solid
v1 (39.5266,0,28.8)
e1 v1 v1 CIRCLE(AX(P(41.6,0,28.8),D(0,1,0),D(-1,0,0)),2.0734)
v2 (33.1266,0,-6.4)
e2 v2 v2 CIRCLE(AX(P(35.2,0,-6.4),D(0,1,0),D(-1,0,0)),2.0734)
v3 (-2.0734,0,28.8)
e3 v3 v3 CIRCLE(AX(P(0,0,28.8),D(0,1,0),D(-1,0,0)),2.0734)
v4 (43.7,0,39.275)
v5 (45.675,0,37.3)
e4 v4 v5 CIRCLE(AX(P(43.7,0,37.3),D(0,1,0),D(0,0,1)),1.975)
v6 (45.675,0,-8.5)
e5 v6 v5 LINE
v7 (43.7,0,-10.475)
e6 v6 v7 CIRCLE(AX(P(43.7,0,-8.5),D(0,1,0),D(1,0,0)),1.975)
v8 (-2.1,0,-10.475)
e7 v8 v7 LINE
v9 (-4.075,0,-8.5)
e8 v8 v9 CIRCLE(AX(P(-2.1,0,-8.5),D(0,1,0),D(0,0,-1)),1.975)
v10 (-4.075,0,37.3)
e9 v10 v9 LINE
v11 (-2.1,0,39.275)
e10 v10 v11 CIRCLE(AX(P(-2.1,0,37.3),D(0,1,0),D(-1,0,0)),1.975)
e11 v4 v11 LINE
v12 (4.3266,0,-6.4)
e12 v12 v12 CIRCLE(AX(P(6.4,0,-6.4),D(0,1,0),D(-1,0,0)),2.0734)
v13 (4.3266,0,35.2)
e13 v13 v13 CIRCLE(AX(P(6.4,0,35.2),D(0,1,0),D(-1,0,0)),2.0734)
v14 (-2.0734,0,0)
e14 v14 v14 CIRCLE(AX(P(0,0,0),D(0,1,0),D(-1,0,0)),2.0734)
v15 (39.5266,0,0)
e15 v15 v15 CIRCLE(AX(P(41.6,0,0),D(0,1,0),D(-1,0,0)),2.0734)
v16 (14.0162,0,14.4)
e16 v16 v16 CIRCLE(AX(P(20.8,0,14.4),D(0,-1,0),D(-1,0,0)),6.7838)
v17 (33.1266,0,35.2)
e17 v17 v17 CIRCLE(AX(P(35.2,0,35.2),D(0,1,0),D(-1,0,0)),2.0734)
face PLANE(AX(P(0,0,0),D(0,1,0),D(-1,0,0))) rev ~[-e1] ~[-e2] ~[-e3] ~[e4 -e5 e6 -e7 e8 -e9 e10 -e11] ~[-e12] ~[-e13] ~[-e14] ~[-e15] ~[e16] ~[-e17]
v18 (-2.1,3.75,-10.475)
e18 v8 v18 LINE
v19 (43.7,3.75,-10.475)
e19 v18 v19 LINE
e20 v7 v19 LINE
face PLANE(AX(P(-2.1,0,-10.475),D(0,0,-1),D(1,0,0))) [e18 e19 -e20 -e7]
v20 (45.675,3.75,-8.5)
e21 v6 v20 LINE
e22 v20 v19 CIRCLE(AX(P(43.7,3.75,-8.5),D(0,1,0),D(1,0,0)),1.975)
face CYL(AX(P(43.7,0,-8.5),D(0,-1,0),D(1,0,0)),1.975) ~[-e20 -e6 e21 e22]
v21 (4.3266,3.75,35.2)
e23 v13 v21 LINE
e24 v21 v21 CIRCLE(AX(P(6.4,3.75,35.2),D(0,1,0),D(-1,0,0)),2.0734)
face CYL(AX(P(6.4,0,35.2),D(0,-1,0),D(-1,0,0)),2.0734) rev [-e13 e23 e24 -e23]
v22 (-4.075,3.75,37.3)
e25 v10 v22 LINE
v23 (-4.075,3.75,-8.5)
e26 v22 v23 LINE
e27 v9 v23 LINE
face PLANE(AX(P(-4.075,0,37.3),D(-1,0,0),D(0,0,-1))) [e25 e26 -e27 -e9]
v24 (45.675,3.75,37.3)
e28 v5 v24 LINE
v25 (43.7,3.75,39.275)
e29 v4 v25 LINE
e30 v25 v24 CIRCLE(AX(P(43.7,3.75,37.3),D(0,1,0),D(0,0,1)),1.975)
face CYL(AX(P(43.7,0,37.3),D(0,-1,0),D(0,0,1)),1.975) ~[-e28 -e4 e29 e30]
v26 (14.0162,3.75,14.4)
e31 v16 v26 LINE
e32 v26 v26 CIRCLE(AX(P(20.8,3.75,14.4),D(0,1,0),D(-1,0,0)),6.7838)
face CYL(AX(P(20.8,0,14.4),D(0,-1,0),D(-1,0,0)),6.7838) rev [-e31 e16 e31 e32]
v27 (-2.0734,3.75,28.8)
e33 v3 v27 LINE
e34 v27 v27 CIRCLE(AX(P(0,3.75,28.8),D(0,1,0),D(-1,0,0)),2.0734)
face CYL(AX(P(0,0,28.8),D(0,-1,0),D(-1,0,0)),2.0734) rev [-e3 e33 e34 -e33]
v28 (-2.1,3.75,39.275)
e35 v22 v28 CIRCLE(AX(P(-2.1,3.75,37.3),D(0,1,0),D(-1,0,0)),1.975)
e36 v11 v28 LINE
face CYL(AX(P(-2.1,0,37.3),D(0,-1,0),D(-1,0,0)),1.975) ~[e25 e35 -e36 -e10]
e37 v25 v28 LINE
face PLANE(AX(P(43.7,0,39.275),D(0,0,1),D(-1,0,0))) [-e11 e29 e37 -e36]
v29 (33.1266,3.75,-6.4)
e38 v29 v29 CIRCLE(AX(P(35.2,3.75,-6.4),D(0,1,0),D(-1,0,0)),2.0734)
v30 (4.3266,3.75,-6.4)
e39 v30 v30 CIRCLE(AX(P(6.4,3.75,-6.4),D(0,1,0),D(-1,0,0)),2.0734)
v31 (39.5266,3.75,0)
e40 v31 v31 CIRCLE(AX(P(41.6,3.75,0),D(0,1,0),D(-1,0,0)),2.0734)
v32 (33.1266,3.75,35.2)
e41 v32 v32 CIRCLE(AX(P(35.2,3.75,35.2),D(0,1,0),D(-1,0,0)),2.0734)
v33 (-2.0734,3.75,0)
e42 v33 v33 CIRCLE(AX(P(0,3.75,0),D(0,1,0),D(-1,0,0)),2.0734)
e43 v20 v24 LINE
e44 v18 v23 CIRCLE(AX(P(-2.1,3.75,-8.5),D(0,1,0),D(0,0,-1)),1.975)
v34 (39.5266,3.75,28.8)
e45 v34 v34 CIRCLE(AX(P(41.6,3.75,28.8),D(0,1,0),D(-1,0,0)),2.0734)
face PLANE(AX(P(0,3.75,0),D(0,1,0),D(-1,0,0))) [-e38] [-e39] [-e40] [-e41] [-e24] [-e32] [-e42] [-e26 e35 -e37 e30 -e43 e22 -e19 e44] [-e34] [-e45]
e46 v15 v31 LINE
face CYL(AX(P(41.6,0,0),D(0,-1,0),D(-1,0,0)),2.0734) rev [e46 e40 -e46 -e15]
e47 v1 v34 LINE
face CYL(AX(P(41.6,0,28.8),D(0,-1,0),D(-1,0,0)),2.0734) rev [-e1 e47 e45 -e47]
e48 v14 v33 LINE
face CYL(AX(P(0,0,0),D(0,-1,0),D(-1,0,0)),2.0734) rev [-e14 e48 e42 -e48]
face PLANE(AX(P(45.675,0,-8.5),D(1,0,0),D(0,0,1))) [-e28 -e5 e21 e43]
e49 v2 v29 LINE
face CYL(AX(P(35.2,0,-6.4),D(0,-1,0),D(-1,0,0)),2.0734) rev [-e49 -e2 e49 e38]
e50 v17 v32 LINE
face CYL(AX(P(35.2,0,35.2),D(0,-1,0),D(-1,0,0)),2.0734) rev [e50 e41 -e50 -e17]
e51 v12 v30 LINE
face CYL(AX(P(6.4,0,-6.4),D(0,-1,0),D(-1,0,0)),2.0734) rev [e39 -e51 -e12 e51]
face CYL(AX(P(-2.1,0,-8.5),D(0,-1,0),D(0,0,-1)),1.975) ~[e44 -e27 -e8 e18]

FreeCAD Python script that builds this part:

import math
import FreeCAD as App
import Part
import Sketcher
Q = App.Units.Quantity

doc = App.newDocument("Part")
params = doc.addObject("Spreadsheet::Sheet", "Params")
for row, (alias, value) in enumerate([
    ("sketch1_width", "45.8 mm"),
    ("pad1_length", "3.75 mm"),
], start=1):
    params.set(f"A{row}", alias)
    params.set(f"B{row}", "=" + value)
    params.setAlias(f"B{row}", alias)

body = doc.addObject("PartDesign::Body", "Body")

sketch1 = body.newObject("Sketcher::SketchObject", "Sketch")
sketch1.AttachmentSupport = (doc.getObject("XZ_Plane"), [""])
sketch1.MapMode = "FlatFace"
sketch1.addGeometry([
    Part.LineSegment(App.Vector(-2.1, 39.3, 0), App.Vector(43.7, 39.3, 0)),
    Part.ArcOfCircle(Part.Circle(App.Vector(43.7, 37.3, 0), App.Vector(0, 0, 1), 2), math.radians(0), math.radians(90)),
    Part.LineSegment(App.Vector(45.7, 37.3, 0), App.Vector(45.7, -8.5, 0)),
    Part.ArcOfCircle(Part.Circle(App.Vector(43.7, -8.5, 0), App.Vector(0, 0, 1), 2), math.radians(-90), math.radians(0)),
    Part.LineSegment(App.Vector(43.7, -10.5, 0), App.Vector(-2.1, -10.5, 0)),
    Part.ArcOfCircle(Part.Circle(App.Vector(-2.1, -8.5, 0), App.Vector(0, 0, 1), 2), math.radians(180), math.radians(270)),
    Part.LineSegment(App.Vector(-4.1, -8.5, 0), App.Vector(-4.1, 37.3, 0)),
    Part.ArcOfCircle(Part.Circle(App.Vector(-2.1, 37.3, 0), App.Vector(0, 0, 1), 2), math.radians(90), math.radians(180)),
    Part.Circle(App.Vector(20.8, 14.4, 0), App.Vector(0, 0, 1), 6.8),
    Part.Circle(App.Vector(35.2, -6.4, 0), App.Vector(0, 0, 1), 2.1),
    Part.Circle(App.Vector(41.6, 0, 0), App.Vector(0, 0, 1), 2.1),
    Part.Circle(App.Vector(6.4, -6.4, 0), App.Vector(0, 0, 1), 2.1),
    Part.Circle(App.Vector(0, 0, 0), App.Vector(0, 0, 1), 2.1),
    Part.Circle(App.Vector(35.2, 35.2, 0), App.Vector(0, 0, 1), 2.1),
    Part.Circle(App.Vector(41.6, 28.8, 0), App.Vector(0, 0, 1), 2.1),
    Part.Circle(App.Vector(0, 28.8, 0), App.Vector(0, 0, 1), 2.1),
    Part.Circle(App.Vector(6.4, 35.2, 0), App.Vector(0, 0, 1), 2.1),
], False)
sketch1.addConstraint([
    Sketcher.Constraint("Tangent", 0, 2, 1, 2),
    Sketcher.Constraint("Tangent", 1, 1, 2, 1),
    Sketcher.Constraint("Tangent", 2, 2, 3, 2),
    Sketcher.Constraint("Tangent", 3, 1, 4, 1),
    Sketcher.Constraint("Tangent", 4, 2, 5, 2),
    Sketcher.Constraint("Tangent", 5, 1, 6, 1),
    Sketcher.Constraint("Tangent", 6, 2, 7, 2),
    Sketcher.Constraint("Tangent", 7, 1, 0, 1),
    Sketcher.Constraint("Horizontal", 0),
    Sketcher.Constraint("Vertical", 2),
    Sketcher.Constraint("Horizontal", 4),
    Sketcher.Constraint("Vertical", 6),
    Sketcher.Constraint("Coincident", 12, 3, -1, 1),
    Sketcher.Constraint("Equal", 1, 3),
    Sketcher.Constraint("Equal", 3, 5),
    Sketcher.Constraint("Equal", 5, 7),
    Sketcher.Constraint("Equal", 9, 10),
    Sketcher.Constraint("Equal", 10, 11),
    Sketcher.Constraint("Equal", 11, 12),
    Sketcher.Constraint("Equal", 12, 13),
    Sketcher.Constraint("Equal", 13, 14),
    Sketcher.Constraint("Equal", 14, 15),
    Sketcher.Constraint("Equal", 15, 16),
    Sketcher.Constraint("PointOnObject", 10, 3, -1),
    Sketcher.Constraint("PointOnObject", 15, 3, -2),
    Sketcher.Constraint("Horizontal", 9, 3, 11, 3),
    Sketcher.Constraint("Horizontal", 14, 3, 15, 3),
    Sketcher.Constraint("Horizontal", 13, 3, 16, 3),
    Sketcher.Constraint("Vertical", 9, 3, 13, 3),
    Sketcher.Constraint("Vertical", 10, 3, 14, 3),
    Sketcher.Constraint("Vertical", 11, 3, 16, 3),
    Sketcher.Constraint("Equal", 4, 2),
    Sketcher.Constraint("Diameter", 8, Q("13.5676 mm")),
    Sketcher.Constraint("DistanceX", 0, 1, 0, 2, Q("45.8 mm")),
    Sketcher.Constraint("Radius", 1, Q("1.975 mm")),
    Sketcher.Constraint("Diameter", 9, Q("4.1468 mm")),
    Sketcher.Constraint("DistanceX", -1, 1, 1, 3, Q("43.7 mm")),
    Sketcher.Constraint("DistanceY", -1, 1, 1, 3, Q("37.3 mm")),
    Sketcher.Constraint("DistanceX", -1, 1, 8, 3, Q("20.8 mm")),
    Sketcher.Constraint("DistanceY", -1, 1, 8, 3, Q("14.4 mm")),
    Sketcher.Constraint("DistanceX", -1, 1, 9, 3, Q("35.2 mm")),
    Sketcher.Constraint("DistanceY", 9, 3, -1, 1, Q("6.4 mm")),
    Sketcher.Constraint("DistanceX", -1, 1, 10, 3, Q("41.6 mm")),
    Sketcher.Constraint("DistanceX", -1, 1, 11, 3, Q("6.4 mm")),
    Sketcher.Constraint("DistanceY", -1, 1, 13, 3, Q("35.2 mm")),
    Sketcher.Constraint("DistanceY", -1, 1, 14, 3, Q("28.8 mm")),
])
sketch1.setExpression("Constraints[33]", "Params.sketch1_width")
pad1 = body.newObject("PartDesign::Pad", "Pad")
pad1.Profile = sketch1
pad1.setExpression("Length", "Params.pad1_length")
pad1.Reversed = True

doc.recompute()
